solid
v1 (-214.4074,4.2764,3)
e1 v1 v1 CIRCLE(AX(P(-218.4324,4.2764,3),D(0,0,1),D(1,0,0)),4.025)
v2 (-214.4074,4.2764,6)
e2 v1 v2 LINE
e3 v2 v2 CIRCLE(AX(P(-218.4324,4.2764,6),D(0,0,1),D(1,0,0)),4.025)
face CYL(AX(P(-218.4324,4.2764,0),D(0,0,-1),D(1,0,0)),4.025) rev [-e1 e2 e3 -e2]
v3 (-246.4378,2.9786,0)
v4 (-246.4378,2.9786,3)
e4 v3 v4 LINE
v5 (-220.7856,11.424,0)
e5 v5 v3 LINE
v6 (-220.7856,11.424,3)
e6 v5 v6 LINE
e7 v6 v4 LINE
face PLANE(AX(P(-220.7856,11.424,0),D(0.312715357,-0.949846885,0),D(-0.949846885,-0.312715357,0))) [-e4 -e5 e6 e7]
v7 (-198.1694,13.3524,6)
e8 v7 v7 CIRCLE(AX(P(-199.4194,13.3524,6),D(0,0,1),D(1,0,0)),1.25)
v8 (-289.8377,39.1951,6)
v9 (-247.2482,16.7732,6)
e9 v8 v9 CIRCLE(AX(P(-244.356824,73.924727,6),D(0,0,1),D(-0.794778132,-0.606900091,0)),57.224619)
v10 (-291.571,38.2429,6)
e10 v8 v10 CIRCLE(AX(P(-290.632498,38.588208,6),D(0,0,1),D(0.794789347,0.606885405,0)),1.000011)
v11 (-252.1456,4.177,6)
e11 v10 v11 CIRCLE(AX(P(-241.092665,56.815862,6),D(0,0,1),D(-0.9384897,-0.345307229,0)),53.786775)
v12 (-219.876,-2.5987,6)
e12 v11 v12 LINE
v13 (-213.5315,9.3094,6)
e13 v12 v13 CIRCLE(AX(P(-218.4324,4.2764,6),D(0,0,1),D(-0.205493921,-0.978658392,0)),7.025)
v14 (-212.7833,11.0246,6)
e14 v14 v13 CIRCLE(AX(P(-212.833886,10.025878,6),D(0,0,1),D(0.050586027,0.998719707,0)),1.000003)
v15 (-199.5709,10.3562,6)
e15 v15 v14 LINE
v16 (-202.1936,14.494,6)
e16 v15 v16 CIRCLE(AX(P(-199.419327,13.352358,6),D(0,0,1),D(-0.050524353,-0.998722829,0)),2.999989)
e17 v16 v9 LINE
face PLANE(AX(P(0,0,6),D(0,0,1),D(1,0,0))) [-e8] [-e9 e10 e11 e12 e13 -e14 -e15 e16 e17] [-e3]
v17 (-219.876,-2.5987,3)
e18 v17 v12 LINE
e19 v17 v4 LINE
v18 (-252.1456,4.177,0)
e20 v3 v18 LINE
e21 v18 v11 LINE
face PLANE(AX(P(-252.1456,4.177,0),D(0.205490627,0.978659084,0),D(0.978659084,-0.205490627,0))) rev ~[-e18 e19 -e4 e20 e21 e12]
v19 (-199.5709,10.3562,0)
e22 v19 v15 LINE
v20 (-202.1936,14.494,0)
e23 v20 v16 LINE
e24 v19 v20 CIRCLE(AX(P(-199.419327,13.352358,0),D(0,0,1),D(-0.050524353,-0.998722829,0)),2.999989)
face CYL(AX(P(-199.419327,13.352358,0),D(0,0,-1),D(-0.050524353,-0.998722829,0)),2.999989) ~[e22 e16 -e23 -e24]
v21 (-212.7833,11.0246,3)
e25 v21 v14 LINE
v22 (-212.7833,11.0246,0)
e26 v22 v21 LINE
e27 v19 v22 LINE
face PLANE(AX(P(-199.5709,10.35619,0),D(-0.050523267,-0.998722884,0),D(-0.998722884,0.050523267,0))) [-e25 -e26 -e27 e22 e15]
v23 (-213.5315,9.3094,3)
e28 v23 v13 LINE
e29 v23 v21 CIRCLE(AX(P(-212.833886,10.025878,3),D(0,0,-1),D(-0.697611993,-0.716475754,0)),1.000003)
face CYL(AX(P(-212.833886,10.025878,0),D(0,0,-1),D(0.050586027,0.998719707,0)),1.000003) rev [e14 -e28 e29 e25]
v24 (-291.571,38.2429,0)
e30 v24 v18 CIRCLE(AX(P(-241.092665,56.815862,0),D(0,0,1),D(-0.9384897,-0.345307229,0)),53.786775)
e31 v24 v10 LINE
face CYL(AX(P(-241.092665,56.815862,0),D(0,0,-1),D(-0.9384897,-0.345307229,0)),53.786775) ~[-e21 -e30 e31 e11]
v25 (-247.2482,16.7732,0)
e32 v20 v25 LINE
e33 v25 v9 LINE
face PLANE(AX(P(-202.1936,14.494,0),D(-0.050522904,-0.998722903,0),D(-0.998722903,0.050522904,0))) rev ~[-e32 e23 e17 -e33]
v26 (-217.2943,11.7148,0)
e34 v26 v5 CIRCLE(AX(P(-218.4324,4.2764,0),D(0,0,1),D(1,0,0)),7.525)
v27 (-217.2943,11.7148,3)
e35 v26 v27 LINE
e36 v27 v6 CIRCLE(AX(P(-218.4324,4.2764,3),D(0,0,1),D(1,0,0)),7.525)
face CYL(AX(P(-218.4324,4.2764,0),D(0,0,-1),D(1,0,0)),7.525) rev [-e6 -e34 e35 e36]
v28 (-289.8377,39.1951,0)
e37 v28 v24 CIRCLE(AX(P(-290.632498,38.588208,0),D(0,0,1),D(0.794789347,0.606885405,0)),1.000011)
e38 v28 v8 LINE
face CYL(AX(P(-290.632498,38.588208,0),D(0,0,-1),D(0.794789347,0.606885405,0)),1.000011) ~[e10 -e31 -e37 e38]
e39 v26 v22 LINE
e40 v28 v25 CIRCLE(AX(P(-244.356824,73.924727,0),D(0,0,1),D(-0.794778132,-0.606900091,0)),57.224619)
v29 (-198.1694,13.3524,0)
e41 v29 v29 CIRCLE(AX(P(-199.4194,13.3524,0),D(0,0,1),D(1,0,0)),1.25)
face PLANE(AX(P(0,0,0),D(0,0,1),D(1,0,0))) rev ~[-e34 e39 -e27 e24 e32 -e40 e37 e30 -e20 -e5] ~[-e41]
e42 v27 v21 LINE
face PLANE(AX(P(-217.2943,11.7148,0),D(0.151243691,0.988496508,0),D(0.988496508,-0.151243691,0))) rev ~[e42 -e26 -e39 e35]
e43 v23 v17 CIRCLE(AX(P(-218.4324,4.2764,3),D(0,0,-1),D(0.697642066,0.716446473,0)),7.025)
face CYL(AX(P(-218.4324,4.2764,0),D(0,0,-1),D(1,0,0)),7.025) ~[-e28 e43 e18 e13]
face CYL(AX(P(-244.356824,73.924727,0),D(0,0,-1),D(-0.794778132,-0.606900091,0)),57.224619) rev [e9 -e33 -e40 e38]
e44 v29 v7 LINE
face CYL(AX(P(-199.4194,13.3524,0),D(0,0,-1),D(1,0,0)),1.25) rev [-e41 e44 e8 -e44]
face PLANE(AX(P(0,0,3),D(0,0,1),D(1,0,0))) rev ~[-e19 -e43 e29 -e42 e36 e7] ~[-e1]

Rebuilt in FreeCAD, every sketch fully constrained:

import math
import FreeCAD as App
import Part
import Sketcher
Q = App.Units.Quantity

doc = App.newDocument("Part")
params = doc.addObject("Spreadsheet::Sheet", "Params")
for row, (alias, value) in enumerate([
    ("sketch1_radius", "3 mm"),
    ("sketch1_radius2", "1 mm"),
    ("sketch1_diameter", "2.5 mm"),
    ("sketch1_diameter2", "8.05 mm"),
    ("pad1_length", "6 mm"),
    ("sketch2_radius", "1 mm"),
    ("sketch2_diameter", "8.05 mm"),
    ("pocket1_length", "3 mm"),
], start=1):
    params.set(f"A{row}", alias)
    params.set(f"B{row}", "=" + value)
    params.setAlias(f"B{row}", alias)

body = doc.addObject("PartDesign::Body", "Body")

# Sketch on XY plane
sketch1 = doc.addObject("Sketcher::SketchObject", "Sketch")
body.addObject(sketch1)
sketch1.AttachmentSupport = (doc.XY_Plane, [""])
sketch1.MapMode = "FlatFace"
sketch1.addGeometry([
    Part.LineSegment(App.Vector(-212.8, 11, 0), App.Vector(-199.6, 10.4, 0)),  # 0
    Part.ArcOfCircle(Part.Circle(App.Vector(-199.4, 13.4, 0), App.Vector(0, 0, 1), 3), math.radians(-93), math.radians(158)),  # 1
    Part.LineSegment(App.Vector(-202.2, 14.5, 0), App.Vector(-247.2, 16.8, 0)),  # 2
    Part.ArcOfCircle(Part.Circle(App.Vector(-244.4, 73.9, 0), App.Vector(0, 0, 1), 57.2), math.radians(-143), math.radians(-93)),  # 3
    Part.ArcOfCircle(Part.Circle(App.Vector(-290.6, 38.6, 0), App.Vector(0, 0, 1), 1), math.radians(37), math.radians(200)),  # 4
    Part.ArcOfCircle(Part.Circle(App.Vector(-241.1, 56.8, 0), App.Vector(0, 0, 1), 53.8), math.radians(-160), math.radians(-102)),  # 5
    Part.LineSegment(App.Vector(-252.1, 4.2, 0), App.Vector(-219.9, -2.6, 0)),  # 6
    Part.ArcOfCircle(Part.Circle(App.Vector(-218.4, 4.3, 0), App.Vector(0, 0, 1), 7), math.radians(-102), math.radians(46)),  # 7
    Part.ArcOfCircle(Part.Circle(App.Vector(-212.8, 10, 0), App.Vector(0, 0, 1), 1), math.radians(87), math.radians(226)),  # 8
    Part.Circle(App.Vector(-218.4, 4.3, 0), App.Vector(0, 0, 1), 4),  # 9
    Part.Circle(App.Vector(-199.4, 13.4, 0), App.Vector(0, 0, 1), 1.2),  # 10
], False)
sketch1.addConstraint([
    Sketcher.Constraint("Tangent", 0, 2, 1, 1),
    Sketcher.Constraint("Coincident", 1, 2, 2, 1),
    Sketcher.Constraint("Tangent", 2, 2, 3, 2),
    Sketcher.Constraint("Tangent", 3, 1, 4, 1),
    Sketcher.Constraint("Tangent", 4, 2, 5, 1),
    Sketcher.Constraint("Tangent", 5, 2, 6, 1),
    Sketcher.Constraint("Tangent", 6, 2, 7, 1),
    Sketcher.Constraint("Tangent", 7, 2, 8, 2),
    Sketcher.Constraint("Tangent", 8, 1, 0, 1),
    Sketcher.Constraint("Coincident", 9, 3, 7, 3),
    Sketcher.Constraint("Coincident", 10, 3, 1, 3),
    Sketcher.Constraint("Equal", 4, 8),
    Sketcher.Constraint("Parallel", 0, 2),
    Sketcher.Constraint("Radius", 1, Q("3 mm")),
    Sketcher.Constraint("Radius", 4, Q("1 mm")),
    Sketcher.Constraint("Diameter", 10, Q("2.5 mm")),
    Sketcher.Constraint("Diameter", 9, Q("8.05 mm")),
    Sketcher.Constraint("Radius", 7, Q("7.025 mm")),
    Sketcher.Constraint("Radius", 3, Q("57.2242 mm")),
    Sketcher.Constraint("Radius", 5, Q("53.7865 mm")),
    Sketcher.Constraint("DistanceX", 4, 3, 7, 3, Q("72.2 mm")),
    Sketcher.Constraint("DistanceX", 3, 3, -1, 1, Q("244.357 mm")),
    Sketcher.Constraint("DistanceX", 5, 3, -1, 1, Q("241.093 mm")),
    Sketcher.Constraint("DistanceX", 8, 3, -1, 1, Q("212.834 mm")),
    Sketcher.Constraint("DistanceY", -1, 1, 8, 3, Q("10.026 mm")),
    Sketcher.Constraint("DistanceX", 0, 2, -1, 1, Q("199.571 mm")),
    Sketcher.Constraint("DistanceY", -1, 1, 1, 2, Q("14.494 mm")),
    Sketcher.Constraint("DistanceY", -1, 1, 3, 1, Q("39.195 mm")),
    Sketcher.Constraint("DistanceX", 4, 2, -1, 1, Q("291.571 mm")),
])
sketch1.setExpression("Constraints[13]", "Params.sketch1_radius")
sketch1.setExpression("Constraints[14]", "Params.sketch1_radius2")
sketch1.setExpression("Constraints[15]", "Params.sketch1_diameter")
sketch1.setExpression("Constraints[16]", "Params.sketch1_diameter2")
pad1 = doc.addObject("PartDesign::Pad", "Pad")
body.addObject(pad1)
pad1.Profile = sketch1
pad1.setExpression("Length", "Params.pad1_length")

# Sketch on XY plane
sketch2 = doc.addObject("Sketcher::SketchObject", "Sketch001")
body.addObject(sketch2)
sketch2.AttachmentSupport = (doc.XY_Plane, [""])
sketch2.MapMode = "FlatFace"
sketch2.addGeometry([
    Part.LineSegment(App.Vector(-212.8, 11, 0), App.Vector(-217.3, 11.7, 0)),  # 0
    Part.ArcOfCircle(Part.Circle(App.Vector(-218.4, 4.3, 0), App.Vector(0, 0, 1), 7.5), math.radians(81), math.radians(108)),  # 1
    Part.LineSegment(App.Vector(-220.8, 11.4, 0), App.Vector(-246.4, 3, 0)),  # 2
    Part.LineSegment(App.Vector(-246.4, 3, 0), App.Vector(-219.9, -2.6, 0)),  # 3
    Part.ArcOfCircle(Part.Circle(App.Vector(-218.4, 4.3, 0), App.Vector(0, 0, 1), 7), math.radians(-102), math.radians(46)),  # 4
    Part.ArcOfCircle(Part.Circle(App.Vector(-212.8, 10, 0), App.Vector(0, 0, 1), 1), math.radians(87), math.radians(226)),  # 5
    Part.Circle(App.Vector(-218.4, 4.3, 0), App.Vector(0, 0, 1), 4),  # 6
], False)
sketch2.addConstraint([
    Sketcher.Constraint("Tangent", 0, 2, 1, 1),
    Sketcher.Constraint("Tangent", 1, 2, 2, 1),
    Sketcher.Constraint("Coincident", 2, 2, 3, 1),
    Sketcher.Constraint("Tangent", 3, 2, 4, 1),
    Sketcher.Constraint("Tangent", 4, 2, 5, 2),
    Sketcher.Constraint("Coincident", 5, 1, 0, 1),
    Sketcher.Constraint("Coincident", 4, 3, 1, 3),
    Sketcher.Constraint("Coincident", 6, 3, 1, 3),
    Sketcher.Constraint("Radius", 5, Q("1 mm")),
    Sketcher.Constraint("Diameter", 6, Q("8.05 mm")),
    Sketcher.Constraint("Angle", 0, Q("171.301 deg")),
    Sketcher.Constraint("Radius", 1, Q("7.525 mm")),
    Sketcher.Constraint("Radius", 4, Q("7.025 mm")),
    Sketcher.Constraint("Distance", 3, Q("27.141 mm")),
    Sketcher.Constraint("DistanceX", 5, 3, -1, 1, Q("212.834 mm")),
    Sketcher.Constraint("DistanceY", -1, 1, 5, 3, Q("10.026 mm")),
    Sketcher.Constraint("DistanceY", -1, 1, 1, 2, Q("11.424 mm")),
    Sketcher.Constraint("DistanceX", 3, 2, -1, 1, Q("219.876 mm")),
])
sketch2.setExpression("Constraints[8]", "Params.sketch2_radius")
sketch2.setExpression("Constraints[9]", "Params.sketch2_diameter")
pocket1 = doc.addObject("PartDesign::Pocket", "Pocket")
body.addObject(pocket1)
pocket1.Profile = sketch2
pocket1.setExpression("Length", "Params.pocket1_length")
pocket1.Reversed = True

doc.recompute()
